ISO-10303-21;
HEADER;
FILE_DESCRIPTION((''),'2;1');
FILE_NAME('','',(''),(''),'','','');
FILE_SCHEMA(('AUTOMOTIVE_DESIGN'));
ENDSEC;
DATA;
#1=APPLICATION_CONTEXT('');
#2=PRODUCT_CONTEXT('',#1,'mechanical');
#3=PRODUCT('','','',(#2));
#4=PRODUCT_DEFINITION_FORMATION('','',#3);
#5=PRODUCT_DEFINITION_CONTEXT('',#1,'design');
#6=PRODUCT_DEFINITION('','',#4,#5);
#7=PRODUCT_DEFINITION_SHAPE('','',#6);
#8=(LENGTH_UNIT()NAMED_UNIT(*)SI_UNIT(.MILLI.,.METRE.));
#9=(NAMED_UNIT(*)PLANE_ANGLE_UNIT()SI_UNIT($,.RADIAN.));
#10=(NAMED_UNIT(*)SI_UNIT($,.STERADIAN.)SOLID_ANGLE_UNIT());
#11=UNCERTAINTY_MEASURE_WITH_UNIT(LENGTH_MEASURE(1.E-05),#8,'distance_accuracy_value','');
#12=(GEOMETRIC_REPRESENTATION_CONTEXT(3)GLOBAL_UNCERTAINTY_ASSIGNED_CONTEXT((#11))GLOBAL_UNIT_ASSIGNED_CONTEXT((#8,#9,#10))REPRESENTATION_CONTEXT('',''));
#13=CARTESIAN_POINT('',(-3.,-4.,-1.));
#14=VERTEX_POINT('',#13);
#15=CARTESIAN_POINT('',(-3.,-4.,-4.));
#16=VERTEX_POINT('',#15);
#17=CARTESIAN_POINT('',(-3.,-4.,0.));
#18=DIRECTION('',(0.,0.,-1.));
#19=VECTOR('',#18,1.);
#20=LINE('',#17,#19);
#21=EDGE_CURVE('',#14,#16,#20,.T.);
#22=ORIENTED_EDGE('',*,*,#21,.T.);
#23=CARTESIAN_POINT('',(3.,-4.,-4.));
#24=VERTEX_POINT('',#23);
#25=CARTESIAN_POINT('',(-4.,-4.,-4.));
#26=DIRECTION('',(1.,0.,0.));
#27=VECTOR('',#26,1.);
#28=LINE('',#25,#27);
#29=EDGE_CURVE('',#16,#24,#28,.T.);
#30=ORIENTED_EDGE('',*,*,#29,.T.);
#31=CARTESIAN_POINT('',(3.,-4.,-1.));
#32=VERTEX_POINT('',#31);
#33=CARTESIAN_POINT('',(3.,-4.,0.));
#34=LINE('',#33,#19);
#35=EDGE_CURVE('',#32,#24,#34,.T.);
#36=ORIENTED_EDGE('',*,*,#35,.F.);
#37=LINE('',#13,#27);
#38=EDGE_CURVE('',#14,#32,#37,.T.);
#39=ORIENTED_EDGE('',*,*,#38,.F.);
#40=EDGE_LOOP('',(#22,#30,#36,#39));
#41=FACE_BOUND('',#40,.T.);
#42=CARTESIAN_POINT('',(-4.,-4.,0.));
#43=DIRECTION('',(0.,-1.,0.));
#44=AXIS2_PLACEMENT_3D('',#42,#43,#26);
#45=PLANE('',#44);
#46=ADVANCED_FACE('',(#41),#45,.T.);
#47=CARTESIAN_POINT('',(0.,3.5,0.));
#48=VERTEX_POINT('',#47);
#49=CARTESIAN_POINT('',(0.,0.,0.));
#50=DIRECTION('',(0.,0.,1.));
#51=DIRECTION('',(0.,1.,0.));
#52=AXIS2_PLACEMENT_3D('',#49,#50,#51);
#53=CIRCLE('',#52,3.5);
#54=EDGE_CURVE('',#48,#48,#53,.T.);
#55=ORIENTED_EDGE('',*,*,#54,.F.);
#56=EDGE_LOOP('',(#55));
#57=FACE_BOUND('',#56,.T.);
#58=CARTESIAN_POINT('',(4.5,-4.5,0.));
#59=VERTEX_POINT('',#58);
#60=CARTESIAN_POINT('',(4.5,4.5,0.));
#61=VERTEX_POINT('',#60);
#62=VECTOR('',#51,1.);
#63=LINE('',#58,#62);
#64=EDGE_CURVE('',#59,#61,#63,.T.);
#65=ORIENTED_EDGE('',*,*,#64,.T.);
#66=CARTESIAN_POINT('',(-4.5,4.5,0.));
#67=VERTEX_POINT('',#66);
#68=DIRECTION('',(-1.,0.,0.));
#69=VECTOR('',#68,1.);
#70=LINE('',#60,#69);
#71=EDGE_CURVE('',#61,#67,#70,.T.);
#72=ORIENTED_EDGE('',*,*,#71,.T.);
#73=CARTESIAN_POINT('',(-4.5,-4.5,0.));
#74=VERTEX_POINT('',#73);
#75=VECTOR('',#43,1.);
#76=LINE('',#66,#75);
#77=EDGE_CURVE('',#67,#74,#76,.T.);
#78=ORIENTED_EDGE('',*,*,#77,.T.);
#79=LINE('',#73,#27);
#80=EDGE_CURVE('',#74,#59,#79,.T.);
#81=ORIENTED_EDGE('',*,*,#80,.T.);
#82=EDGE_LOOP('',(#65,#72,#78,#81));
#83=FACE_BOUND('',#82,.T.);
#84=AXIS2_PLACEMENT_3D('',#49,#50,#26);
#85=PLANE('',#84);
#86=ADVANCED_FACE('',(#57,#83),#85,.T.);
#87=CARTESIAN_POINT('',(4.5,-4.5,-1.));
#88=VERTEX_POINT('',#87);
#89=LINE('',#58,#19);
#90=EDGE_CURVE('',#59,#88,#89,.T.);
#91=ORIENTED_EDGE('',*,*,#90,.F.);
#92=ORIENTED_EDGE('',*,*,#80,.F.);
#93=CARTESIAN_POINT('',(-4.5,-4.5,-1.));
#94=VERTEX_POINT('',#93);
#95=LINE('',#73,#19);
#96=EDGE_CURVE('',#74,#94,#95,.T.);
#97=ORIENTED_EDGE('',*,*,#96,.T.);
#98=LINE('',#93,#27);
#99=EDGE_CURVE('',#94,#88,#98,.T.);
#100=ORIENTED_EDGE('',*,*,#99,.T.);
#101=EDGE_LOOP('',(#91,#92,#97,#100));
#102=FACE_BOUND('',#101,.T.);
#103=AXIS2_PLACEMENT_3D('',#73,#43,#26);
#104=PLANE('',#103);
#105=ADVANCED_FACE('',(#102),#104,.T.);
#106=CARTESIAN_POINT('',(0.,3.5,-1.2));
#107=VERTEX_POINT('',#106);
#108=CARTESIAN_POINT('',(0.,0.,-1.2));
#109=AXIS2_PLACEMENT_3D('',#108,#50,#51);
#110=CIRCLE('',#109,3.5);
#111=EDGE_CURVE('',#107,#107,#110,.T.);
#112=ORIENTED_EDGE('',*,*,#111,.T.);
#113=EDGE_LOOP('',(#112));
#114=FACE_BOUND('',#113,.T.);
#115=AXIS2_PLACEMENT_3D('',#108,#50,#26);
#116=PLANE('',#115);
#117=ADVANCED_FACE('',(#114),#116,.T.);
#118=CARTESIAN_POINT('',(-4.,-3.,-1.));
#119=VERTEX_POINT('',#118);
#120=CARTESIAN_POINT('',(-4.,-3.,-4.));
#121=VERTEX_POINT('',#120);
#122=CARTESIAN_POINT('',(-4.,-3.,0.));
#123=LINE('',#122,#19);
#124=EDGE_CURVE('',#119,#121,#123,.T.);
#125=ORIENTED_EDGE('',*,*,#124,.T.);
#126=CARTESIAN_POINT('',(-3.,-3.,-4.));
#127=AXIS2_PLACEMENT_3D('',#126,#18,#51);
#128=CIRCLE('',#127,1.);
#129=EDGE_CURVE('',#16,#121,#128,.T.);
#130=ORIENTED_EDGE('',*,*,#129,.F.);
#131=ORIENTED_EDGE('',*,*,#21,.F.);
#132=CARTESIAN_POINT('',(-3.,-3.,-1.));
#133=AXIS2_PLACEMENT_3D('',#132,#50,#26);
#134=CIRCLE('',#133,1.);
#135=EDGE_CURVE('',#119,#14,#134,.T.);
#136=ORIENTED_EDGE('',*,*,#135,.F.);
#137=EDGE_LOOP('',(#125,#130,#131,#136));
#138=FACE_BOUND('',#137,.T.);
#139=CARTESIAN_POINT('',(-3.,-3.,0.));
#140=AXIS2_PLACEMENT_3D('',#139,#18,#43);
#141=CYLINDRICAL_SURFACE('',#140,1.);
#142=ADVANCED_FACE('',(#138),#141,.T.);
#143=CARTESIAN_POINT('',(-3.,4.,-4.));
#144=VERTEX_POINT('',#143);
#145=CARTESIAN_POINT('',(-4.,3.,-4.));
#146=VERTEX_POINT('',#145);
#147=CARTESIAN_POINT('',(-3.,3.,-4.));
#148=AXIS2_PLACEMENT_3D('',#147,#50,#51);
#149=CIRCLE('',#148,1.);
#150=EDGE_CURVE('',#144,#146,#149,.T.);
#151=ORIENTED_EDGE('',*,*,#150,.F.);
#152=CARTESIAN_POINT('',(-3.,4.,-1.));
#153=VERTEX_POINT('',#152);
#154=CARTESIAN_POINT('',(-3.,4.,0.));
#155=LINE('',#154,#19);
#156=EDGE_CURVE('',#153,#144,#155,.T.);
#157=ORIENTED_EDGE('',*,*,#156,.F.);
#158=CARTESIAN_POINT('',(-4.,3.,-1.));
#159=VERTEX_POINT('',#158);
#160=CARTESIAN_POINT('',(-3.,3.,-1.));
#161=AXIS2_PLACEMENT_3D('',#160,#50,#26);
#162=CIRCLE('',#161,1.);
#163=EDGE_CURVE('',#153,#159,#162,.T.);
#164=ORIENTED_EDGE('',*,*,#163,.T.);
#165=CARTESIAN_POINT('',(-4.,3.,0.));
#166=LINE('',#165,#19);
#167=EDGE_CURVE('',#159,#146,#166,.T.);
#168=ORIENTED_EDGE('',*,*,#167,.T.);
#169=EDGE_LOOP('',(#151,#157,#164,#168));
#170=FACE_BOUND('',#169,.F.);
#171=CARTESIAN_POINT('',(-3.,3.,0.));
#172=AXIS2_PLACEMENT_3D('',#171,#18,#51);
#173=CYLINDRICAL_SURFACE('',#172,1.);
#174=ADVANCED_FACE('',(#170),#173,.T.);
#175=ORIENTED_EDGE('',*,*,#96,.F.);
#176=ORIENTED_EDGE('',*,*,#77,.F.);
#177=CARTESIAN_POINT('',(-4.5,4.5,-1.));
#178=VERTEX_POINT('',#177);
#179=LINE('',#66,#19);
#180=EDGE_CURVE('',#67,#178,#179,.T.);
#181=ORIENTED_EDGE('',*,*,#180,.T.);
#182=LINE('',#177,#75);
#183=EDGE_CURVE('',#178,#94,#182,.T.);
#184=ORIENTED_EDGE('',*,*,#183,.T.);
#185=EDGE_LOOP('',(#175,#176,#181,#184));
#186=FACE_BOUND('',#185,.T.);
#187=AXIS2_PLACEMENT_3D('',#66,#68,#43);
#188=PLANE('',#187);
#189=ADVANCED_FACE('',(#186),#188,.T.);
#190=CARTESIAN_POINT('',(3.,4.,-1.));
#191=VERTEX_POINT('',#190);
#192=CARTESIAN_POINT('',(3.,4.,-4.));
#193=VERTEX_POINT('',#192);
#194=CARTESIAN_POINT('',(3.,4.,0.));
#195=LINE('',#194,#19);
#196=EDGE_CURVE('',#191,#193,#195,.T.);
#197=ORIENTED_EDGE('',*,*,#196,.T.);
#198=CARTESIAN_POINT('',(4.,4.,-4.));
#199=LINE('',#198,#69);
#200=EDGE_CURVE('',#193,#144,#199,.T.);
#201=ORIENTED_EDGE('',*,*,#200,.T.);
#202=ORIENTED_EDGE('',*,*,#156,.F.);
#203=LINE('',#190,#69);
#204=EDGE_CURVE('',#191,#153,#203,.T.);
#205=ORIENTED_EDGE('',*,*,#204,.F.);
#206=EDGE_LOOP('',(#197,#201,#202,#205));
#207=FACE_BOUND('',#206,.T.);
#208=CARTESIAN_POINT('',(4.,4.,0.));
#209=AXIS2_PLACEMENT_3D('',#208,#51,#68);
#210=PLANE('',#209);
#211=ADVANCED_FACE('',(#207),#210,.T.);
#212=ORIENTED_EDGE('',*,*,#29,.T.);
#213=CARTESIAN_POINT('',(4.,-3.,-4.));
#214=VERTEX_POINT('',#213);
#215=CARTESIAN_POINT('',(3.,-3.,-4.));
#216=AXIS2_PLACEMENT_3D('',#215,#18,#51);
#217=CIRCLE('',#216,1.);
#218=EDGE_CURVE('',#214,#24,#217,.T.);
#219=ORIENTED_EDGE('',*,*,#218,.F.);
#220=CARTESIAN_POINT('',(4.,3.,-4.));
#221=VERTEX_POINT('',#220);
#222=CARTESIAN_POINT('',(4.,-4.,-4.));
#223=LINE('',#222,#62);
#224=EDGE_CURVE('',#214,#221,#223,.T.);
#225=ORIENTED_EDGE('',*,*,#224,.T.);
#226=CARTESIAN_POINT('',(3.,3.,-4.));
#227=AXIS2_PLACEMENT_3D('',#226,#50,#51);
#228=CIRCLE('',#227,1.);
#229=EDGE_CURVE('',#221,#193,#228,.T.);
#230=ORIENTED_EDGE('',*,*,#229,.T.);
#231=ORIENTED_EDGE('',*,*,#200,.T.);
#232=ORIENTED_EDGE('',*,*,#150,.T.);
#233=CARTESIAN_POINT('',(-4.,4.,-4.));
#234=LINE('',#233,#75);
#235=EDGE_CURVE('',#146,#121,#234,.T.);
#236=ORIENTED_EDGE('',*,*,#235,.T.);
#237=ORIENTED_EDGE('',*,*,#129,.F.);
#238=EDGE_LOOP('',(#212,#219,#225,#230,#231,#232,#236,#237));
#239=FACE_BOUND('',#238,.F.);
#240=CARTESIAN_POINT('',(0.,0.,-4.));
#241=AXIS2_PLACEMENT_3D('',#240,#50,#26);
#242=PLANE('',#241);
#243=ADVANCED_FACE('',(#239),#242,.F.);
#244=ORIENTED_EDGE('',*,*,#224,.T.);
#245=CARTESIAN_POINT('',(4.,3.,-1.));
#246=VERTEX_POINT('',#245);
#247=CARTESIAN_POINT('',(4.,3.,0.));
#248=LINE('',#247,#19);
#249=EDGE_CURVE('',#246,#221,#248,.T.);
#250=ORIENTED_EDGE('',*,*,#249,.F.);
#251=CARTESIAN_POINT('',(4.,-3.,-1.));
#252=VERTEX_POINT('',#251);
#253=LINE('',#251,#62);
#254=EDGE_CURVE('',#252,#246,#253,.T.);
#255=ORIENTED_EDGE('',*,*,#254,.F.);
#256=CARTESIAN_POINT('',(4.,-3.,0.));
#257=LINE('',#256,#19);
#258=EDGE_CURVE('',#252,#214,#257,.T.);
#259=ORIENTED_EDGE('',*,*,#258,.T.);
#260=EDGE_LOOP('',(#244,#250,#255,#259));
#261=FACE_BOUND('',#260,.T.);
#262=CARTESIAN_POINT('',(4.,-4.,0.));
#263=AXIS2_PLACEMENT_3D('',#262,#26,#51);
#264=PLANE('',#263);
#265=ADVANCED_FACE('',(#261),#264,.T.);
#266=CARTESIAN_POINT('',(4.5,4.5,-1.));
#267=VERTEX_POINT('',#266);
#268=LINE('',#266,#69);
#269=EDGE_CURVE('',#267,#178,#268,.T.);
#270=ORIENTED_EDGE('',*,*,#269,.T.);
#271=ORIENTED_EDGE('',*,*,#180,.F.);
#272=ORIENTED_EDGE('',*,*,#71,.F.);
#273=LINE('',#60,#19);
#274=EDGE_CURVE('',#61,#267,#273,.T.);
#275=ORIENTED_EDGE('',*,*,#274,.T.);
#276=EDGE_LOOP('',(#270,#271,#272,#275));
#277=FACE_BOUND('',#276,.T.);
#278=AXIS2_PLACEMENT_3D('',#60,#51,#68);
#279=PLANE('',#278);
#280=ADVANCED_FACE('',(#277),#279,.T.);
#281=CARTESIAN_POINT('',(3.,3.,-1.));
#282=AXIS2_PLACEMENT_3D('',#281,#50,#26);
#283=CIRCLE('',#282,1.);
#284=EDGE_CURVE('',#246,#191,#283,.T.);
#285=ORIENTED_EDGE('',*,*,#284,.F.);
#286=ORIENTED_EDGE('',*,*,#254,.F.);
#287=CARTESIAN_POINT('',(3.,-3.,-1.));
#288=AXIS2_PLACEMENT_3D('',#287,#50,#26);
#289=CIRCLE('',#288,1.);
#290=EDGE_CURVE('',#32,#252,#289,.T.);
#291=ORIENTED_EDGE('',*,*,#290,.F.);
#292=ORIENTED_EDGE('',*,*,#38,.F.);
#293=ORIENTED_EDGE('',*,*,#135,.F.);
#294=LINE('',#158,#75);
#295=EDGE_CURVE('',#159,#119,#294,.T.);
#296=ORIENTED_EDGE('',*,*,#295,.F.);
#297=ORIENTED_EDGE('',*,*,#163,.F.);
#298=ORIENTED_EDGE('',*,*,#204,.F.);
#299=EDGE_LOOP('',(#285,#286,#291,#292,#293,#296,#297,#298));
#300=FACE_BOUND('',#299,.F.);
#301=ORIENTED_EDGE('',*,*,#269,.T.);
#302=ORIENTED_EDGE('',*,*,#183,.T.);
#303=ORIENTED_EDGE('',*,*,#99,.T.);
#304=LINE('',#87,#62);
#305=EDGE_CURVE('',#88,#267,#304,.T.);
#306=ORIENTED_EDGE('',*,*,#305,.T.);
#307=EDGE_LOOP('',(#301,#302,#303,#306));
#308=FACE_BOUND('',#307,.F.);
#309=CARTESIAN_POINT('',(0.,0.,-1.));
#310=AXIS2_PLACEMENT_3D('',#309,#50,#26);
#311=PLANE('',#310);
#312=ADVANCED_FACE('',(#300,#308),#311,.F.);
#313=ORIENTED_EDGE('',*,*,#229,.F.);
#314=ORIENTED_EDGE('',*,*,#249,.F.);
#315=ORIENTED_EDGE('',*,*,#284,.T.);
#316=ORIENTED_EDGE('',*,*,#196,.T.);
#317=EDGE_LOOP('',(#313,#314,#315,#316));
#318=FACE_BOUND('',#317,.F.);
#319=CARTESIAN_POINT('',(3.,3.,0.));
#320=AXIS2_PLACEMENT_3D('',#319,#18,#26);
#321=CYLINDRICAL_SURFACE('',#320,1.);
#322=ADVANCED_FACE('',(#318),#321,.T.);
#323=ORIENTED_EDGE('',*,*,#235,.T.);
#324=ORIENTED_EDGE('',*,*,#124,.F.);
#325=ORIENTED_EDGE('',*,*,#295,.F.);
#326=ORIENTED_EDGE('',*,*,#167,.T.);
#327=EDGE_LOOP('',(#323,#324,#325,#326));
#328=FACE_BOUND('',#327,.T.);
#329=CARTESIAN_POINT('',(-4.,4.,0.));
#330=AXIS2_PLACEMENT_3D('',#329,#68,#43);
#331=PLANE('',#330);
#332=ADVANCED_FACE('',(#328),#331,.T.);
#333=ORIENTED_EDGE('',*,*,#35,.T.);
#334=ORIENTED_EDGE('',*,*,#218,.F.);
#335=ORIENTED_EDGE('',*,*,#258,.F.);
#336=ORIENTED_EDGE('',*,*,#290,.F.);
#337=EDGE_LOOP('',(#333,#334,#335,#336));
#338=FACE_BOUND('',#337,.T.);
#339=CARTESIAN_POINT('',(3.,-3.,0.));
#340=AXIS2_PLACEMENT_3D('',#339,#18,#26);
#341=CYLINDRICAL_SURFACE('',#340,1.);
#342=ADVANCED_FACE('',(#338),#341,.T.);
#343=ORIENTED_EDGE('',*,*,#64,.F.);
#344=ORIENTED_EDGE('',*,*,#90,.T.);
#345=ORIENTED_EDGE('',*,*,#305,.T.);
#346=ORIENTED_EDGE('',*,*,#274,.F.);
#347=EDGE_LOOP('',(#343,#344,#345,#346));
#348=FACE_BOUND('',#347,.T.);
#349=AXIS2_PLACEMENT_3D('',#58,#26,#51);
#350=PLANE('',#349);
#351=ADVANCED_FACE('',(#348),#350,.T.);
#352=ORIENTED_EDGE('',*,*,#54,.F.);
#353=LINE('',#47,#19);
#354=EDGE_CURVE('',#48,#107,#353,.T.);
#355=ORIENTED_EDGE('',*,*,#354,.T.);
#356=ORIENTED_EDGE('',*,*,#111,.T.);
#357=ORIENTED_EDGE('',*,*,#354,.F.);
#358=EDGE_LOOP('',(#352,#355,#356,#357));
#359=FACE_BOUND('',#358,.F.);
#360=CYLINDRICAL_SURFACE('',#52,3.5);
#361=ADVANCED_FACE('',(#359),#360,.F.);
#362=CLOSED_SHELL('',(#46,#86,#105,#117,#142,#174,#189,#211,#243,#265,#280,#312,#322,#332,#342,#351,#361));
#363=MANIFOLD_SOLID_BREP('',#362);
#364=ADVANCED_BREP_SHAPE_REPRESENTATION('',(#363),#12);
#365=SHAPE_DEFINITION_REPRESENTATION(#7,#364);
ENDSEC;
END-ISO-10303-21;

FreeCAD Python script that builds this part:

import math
import FreeCAD as App
import Part
import Sketcher

V = App.Vector


def edges_at(feature, points):
    """Names of the edges that pass closest to the given points."""
    edges = feature.Shape.Edges
    near = lambda p: min(range(len(edges)), key=lambda i: edges[i].distToShape(Part.Vertex(*p))[0])
    return sorted({f"Edge{near(p) + 1}" for p in points})


def add_polygon(sketch, points):
    """Adds a closed chain of lines whose ends are joined by coincident constraints."""
    first, n = sketch.GeometryCount, len(points)
    for a, b in zip(points, points[1:] + points[:1]):
        sketch.addGeometry(Part.LineSegment(App.Vector(*a, 0), App.Vector(*b, 0)), False)
    for i in range(n):
        sketch.addConstraint(Sketcher.Constraint("Coincident", first + i, 2, first + (i + 1) % n, 1))

doc = App.newDocument("Part")
body = doc.addObject("PartDesign::Body", "Body")

sketch1 = body.newObject("Sketcher::SketchObject", "Sketch")
sketch1.AttachmentSupport = (doc.getObject("XY_Plane"), [""])
sketch1.MapMode = "FlatFace"
add_polygon(sketch1, [(-4, -4), (4, -4), (4, 4), (-4, 4)])
sketch1.addConstraint([
    Sketcher.Constraint("Horizontal", 0),
    Sketcher.Constraint("Vertical", 1),
    Sketcher.Constraint("Horizontal", 2),
    Sketcher.Constraint("Vertical", 3),
    Sketcher.Constraint("Symmetric", 0, 2, 2, 2, -1, 1),
    Sketcher.Constraint("Equal", 2, 1),
    Sketcher.Constraint("DistanceX", 0, 1, 0, 2, 8.0),
])
pad1 = body.newObject("PartDesign::Pad", "Pad")
pad1.Profile = sketch1
pad1.Length = 4
pad1.Reversed = True

sketch2 = body.newObject("Sketcher::SketchObject", "Sketch001")
sketch2.AttachmentSupport = (doc.getObject("XY_Plane"), [""])
sketch2.MapMode = "FlatFace"
sketch2.addGeometry(Part.Circle(V(0, 0, 0), V(0, 0, 1), 3.5), False)
sketch2.addConstraint([
    Sketcher.Constraint("Coincident", 0, 3, -1, 1),
    Sketcher.Constraint("Diameter", 0, 7.0),
])
pocket1 = body.newObject("PartDesign::Pocket", "Pocket")
pocket1.Profile = sketch2
pocket1.Length = 1.2
doc.recompute()

fillet = body.newObject("PartDesign::Fillet", "Fillet")
fillet.Base = (pocket1, edges_at(pocket1, [
    (4, -4, -2),
    (-4, -4, -2),
    (4, 4, -2),
    (-4, 4, -2),
]))
fillet.Radius = 1

sketch3 = body.newObject("Sketcher::SketchObject", "Sketch002")
sketch3.AttachmentSupport = (doc.getObject("XY_Plane"), [""])
sketch3.MapMode = "FlatFace"
add_polygon(sketch3, [(-4.5, -4.5), (4.5, -4.5), (4.5, 4.5), (-4.5, 4.5)])
sketch3.addGeometry(Part.LineSegment(V(4, 3, 0), V(4, -3, 0)), False)
sketch3.addGeometry(Part.ArcOfCircle(Part.Circle(V(3, -3, 0), V(0, 0, 1), 1), math.radians(-90), math.radians(0)), False)
sketch3.addGeometry(Part.LineSegment(V(3, -4, 0), V(-3, -4, 0)), False)
sketch3.addGeometry(Part.ArcOfCircle(Part.Circle(V(-3, -3, 0), V(0, 0, 1), 1), math.radians(180), math.radians(270)), False)
sketch3.addGeometry(Part.LineSegment(V(-4, -3, 0), V(-4, 3, 0)), False)
sketch3.addGeometry(Part.ArcOfCircle(Part.Circle(V(-3, 3, 0), V(0, 0, 1), 1), math.radians(90), math.radians(180)), False)
sketch3.addGeometry(Part.LineSegment(V(-3, 4, 0), V(3, 4, 0)), False)
sketch3.addGeometry(Part.ArcOfCircle(Part.Circle(V(3, 3, 0), V(0, 0, 1), 1), math.radians(0), math.radians(90)), False)
sketch3.addConstraint([
    Sketcher.Constraint("Tangent", 4, 2, 5, 2),
    Sketcher.Constraint("Tangent", 5, 1, 6, 1),
    Sketcher.Constraint("Tangent", 6, 2, 7, 2),
    Sketcher.Constraint("Tangent", 7, 1, 8, 1),
    Sketcher.Constraint("Tangent", 8, 2, 9, 2),
    Sketcher.Constraint("Tangent", 9, 1, 10, 1),
    Sketcher.Constraint("Tangent", 10, 2, 11, 2),
    Sketcher.Constraint("Tangent", 11, 1, 4, 1),
    Sketcher.Constraint("Horizontal", 0),
    Sketcher.Constraint("Vertical", 1),
    Sketcher.Constraint("Horizontal", 2),
    Sketcher.Constraint("Vertical", 3),
    Sketcher.Constraint("Vertical", 4),
    Sketcher.Constraint("Horizontal", 6),
    Sketcher.Constraint("Vertical", 8),
    Sketcher.Constraint("Horizontal", 10),
    Sketcher.Constraint("Equal", 5, 7),
    Sketcher.Constraint("Equal", 7, 9),
    Sketcher.Constraint("Equal", 9, 11),
    Sketcher.Constraint("Symmetric", 5, 3, 9, 3, -1, 1),
    Sketcher.Constraint("Symmetric", 0, 2, 2, 2, -1, 1),
    Sketcher.Constraint("Equal", 2, 1),
    Sketcher.Constraint("Equal", 10, 4),
    Sketcher.Constraint("Radius", 5, 1.0),
    Sketcher.Constraint("DistanceX", 0, 1, 0, 2, 9.0),
    Sketcher.Constraint("DistanceX", 6, 2, 6, 1, 6.0),
])
pad2 = body.newObject("PartDesign::Pad", "Pad001")
pad2.Profile = sketch3
pad2.Length = 1
pad2.Reversed = True

doc.recompute()
